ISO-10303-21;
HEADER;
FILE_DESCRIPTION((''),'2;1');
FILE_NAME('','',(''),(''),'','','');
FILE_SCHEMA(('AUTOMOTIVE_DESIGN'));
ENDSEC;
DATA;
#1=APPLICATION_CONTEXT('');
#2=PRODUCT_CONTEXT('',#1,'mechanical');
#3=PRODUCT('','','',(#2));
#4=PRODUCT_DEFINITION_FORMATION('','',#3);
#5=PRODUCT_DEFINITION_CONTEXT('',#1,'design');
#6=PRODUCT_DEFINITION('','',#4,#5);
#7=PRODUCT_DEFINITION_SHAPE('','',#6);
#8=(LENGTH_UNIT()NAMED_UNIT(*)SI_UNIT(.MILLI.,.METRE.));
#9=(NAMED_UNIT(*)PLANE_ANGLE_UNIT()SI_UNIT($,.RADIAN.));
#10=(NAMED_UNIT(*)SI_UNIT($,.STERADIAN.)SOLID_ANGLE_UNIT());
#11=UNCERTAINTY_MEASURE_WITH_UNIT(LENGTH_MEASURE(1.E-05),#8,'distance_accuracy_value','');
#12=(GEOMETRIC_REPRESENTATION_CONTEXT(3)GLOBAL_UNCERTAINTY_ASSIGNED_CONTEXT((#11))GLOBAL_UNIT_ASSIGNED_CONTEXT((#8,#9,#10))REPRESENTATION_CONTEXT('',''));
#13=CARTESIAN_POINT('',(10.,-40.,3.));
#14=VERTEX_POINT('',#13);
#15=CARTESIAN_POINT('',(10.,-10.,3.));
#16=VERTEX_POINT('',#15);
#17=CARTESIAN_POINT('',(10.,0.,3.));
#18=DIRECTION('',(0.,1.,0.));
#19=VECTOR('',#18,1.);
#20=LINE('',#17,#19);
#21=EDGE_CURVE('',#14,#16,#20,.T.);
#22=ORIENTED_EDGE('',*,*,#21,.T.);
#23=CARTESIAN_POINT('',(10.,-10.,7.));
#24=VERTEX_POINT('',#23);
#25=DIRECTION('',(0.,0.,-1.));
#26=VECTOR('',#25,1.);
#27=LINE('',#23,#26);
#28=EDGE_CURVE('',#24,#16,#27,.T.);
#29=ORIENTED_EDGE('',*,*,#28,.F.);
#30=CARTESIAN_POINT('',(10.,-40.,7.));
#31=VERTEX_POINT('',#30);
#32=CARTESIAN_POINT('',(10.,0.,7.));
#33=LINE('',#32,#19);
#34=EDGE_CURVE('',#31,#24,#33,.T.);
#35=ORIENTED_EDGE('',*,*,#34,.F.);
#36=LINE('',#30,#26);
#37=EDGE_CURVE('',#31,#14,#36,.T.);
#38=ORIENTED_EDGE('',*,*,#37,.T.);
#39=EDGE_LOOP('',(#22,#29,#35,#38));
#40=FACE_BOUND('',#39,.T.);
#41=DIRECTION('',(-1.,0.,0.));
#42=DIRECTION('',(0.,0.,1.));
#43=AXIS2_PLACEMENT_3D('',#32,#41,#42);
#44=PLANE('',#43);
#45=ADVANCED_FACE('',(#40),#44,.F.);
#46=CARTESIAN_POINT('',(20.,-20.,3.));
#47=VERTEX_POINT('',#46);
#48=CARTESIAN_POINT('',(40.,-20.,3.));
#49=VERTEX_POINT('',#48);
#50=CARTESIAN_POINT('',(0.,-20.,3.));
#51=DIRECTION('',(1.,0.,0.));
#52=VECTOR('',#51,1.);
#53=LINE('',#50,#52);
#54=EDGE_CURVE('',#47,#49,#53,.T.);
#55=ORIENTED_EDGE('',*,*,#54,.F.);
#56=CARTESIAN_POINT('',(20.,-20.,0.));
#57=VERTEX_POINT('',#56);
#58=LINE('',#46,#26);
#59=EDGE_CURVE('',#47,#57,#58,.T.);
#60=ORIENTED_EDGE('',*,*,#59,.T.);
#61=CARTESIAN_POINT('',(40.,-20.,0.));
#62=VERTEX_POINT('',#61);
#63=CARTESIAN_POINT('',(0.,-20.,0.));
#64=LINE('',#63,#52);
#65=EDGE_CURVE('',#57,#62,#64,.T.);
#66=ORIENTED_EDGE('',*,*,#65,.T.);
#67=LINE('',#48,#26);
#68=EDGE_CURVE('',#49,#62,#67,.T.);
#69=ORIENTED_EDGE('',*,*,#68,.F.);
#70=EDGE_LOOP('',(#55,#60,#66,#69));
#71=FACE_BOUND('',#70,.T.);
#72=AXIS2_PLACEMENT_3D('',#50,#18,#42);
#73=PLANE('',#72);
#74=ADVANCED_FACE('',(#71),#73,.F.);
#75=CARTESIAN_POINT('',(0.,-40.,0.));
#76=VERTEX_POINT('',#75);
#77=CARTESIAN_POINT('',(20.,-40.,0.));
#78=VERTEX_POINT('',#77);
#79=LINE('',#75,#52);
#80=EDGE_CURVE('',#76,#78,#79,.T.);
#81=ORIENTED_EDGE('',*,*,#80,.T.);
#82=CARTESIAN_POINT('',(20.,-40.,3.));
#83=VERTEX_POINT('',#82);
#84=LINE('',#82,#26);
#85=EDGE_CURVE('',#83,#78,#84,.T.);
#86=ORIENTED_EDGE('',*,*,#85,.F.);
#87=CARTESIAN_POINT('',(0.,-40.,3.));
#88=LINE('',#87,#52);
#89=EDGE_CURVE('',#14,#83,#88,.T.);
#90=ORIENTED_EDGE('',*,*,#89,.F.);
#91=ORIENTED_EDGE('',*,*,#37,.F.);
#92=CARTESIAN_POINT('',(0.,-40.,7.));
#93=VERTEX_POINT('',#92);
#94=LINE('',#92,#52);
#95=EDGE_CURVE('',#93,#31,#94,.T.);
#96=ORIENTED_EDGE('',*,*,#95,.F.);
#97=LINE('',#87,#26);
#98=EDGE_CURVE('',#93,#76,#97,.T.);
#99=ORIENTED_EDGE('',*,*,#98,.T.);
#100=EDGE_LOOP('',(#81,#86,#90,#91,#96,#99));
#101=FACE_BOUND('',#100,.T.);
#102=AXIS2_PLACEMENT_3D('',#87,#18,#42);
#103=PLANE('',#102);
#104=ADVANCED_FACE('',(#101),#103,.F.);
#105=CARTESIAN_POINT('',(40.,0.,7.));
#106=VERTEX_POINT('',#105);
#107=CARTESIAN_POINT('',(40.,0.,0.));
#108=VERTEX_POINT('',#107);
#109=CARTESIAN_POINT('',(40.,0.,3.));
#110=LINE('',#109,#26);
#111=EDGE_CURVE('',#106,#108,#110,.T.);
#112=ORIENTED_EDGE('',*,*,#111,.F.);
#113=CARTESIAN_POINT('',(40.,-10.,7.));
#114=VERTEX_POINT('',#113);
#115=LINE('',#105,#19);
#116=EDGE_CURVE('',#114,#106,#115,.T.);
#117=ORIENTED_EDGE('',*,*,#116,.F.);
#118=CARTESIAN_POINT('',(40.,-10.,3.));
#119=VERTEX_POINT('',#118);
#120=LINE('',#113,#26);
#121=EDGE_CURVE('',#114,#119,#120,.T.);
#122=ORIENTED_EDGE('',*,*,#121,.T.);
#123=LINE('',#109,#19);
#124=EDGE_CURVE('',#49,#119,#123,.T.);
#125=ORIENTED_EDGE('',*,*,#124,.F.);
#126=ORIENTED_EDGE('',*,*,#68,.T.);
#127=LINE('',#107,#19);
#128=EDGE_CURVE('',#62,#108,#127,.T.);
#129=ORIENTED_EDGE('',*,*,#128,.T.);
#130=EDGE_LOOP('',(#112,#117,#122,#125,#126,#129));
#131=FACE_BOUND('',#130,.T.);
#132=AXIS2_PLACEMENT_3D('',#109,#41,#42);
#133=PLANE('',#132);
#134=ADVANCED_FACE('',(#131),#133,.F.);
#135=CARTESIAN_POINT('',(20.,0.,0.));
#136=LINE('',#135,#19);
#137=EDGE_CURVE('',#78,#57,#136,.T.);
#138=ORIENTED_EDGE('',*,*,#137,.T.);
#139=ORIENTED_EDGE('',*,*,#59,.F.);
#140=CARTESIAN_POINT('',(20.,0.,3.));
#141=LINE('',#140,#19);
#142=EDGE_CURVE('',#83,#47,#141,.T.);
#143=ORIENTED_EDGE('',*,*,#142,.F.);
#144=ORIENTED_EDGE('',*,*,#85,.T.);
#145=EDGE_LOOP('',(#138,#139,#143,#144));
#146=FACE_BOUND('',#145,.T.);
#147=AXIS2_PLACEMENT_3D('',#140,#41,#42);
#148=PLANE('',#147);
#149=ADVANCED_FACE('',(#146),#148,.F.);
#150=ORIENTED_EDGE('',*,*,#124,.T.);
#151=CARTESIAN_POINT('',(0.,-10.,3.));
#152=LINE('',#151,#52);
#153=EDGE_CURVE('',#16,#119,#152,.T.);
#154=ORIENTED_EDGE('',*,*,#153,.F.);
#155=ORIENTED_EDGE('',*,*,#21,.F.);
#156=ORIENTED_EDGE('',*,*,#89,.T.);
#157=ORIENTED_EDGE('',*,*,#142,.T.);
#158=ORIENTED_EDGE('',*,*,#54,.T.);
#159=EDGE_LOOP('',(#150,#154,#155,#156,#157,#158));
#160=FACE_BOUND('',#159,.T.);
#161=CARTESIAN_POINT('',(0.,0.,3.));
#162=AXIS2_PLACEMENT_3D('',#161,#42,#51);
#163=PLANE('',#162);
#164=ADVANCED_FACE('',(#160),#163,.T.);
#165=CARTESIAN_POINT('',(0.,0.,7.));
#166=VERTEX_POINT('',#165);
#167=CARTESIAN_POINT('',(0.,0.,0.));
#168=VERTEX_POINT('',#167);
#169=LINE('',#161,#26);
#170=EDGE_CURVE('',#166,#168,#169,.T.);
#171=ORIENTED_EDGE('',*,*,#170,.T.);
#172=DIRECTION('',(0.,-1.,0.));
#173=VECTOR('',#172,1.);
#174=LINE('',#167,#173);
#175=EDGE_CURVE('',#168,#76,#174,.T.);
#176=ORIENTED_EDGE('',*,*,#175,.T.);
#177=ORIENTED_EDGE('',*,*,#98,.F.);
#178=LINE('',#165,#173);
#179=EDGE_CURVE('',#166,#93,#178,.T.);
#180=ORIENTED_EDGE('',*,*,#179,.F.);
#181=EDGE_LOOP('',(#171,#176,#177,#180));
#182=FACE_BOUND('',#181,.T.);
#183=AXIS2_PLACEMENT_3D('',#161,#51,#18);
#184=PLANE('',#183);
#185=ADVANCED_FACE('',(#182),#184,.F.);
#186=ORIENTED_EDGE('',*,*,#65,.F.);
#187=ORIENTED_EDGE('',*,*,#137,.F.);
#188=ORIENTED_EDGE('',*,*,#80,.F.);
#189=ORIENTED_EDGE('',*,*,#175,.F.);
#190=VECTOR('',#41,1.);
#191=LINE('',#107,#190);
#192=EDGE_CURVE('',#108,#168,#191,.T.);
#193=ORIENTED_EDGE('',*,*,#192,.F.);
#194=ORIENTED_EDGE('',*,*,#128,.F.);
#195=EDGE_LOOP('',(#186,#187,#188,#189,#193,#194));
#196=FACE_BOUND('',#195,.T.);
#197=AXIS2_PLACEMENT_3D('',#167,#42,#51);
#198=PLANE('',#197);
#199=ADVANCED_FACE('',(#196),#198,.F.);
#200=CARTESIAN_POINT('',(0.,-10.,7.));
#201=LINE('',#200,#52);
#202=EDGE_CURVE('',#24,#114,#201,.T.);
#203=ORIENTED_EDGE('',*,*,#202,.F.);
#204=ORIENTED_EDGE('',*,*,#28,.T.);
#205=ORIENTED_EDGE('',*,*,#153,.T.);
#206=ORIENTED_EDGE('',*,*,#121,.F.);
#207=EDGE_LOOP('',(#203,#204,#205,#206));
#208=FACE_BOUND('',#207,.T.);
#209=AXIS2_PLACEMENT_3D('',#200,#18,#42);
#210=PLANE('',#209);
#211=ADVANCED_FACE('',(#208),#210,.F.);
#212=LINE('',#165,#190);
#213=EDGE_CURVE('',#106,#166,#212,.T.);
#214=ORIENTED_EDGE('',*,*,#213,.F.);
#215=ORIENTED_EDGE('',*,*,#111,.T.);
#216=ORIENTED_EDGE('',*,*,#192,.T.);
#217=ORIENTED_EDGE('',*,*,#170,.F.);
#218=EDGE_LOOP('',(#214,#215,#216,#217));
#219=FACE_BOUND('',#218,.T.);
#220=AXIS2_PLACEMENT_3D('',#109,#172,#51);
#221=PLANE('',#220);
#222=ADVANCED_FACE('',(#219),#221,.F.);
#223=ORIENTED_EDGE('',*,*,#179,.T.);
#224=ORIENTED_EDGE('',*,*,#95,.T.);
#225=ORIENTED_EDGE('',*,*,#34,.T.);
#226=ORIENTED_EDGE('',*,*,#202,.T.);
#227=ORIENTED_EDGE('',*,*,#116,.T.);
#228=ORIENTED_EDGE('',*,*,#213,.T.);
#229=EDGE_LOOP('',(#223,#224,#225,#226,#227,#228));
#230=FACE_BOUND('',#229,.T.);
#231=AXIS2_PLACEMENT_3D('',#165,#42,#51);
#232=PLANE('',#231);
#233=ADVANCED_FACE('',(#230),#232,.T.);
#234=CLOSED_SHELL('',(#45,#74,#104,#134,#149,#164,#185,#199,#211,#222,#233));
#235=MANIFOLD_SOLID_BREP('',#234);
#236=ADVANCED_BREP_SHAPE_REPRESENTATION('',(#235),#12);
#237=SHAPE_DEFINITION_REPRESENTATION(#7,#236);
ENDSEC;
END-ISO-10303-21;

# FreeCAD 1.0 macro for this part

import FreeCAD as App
import Part
import Sketcher
Q = App.Units.Quantity

doc = App.newDocument("Part")
body = doc.addObject("PartDesign::Body", "Body")

# Sketch on XY plane
sketch1 = doc.addObject("Sketcher::SketchObject", "Sketch")
body.addObject(sketch1)
sketch1.AttachmentSupport = (doc.XY_Plane, [""])
sketch1.MapMode = "FlatFace"
sketch1.addGeometry([
    Part.LineSegment(App.Vector(0, 0, 0), App.Vector(0, -40, 0)),  # 0
    Part.LineSegment(App.Vector(0, -40, 0), App.Vector(20, -40, 0)),  # 1
    Part.LineSegment(App.Vector(20, -40, 0), App.Vector(20, -20, 0)),  # 2
    Part.LineSegment(App.Vector(20, -20, 0), App.Vector(40, -20, 0)),  # 3
    Part.LineSegment(App.Vector(40, -20, 0), App.Vector(40, 0, 0)),  # 4
    Part.LineSegment(App.Vector(40, 0, 0), App.Vector(0, 0, 0)),  # 5
], False)
sketch1.addConstraint([
    Sketcher.Constraint("Coincident", 0, 2, 1, 1),
    Sketcher.Constraint("Coincident", 1, 2, 2, 1),
    Sketcher.Constraint("Coincident", 2, 2, 3, 1),
    Sketcher.Constraint("Coincident", 3, 2, 4, 1),
    Sketcher.Constraint("Coincident", 4, 2, 5, 1),
    Sketcher.Constraint("Coincident", 5, 2, 0, 1),
    Sketcher.Constraint("Vertical", 0),
    Sketcher.Constraint("Horizontal", 1),
    Sketcher.Constraint("Vertical", 2),
    Sketcher.Constraint("Horizontal", 3),
    Sketcher.Constraint("Vertical", 4),
    Sketcher.Constraint("Horizontal", 5),
    Sketcher.Constraint("Coincident", 5, 2, -1, 1),
    Sketcher.Constraint("Equal", 1, 3),
    Sketcher.Constraint("Equal", 5, 0),
    Sketcher.Constraint("Equal", 3, 2),
    Sketcher.Constraint("DistanceX", 1, 1, 1, 2, Q("20 mm")),
])
pad1 = doc.addObject("PartDesign::Pad", "Pad")
body.addObject(pad1)
pad1.Profile = sketch1
pad1.Length = 3

# Sketch on XY plane
sketch2 = doc.addObject("Sketcher::SketchObject", "Sketch001")
body.addObject(sketch2)
sketch2.AttachmentSupport = (doc.XY_Plane, [""])
sketch2.MapMode = "FlatFace"
sketch2.AttachmentOffset = App.Placement(App.Vector(0, 0, 3), App.Rotation())
sketch2.addGeometry([
    Part.LineSegment(App.Vector(0, -40, 0), App.Vector(10, -40, 0)),  # 0
    Part.LineSegment(App.Vector(10, -40, 0), App.Vector(10, -10, 0)),  # 1
    Part.LineSegment(App.Vector(10, -10, 0), App.Vector(40, -10, 0)),  # 2
    Part.LineSegment(App.Vector(40, -10, 0), App.Vector(40, 0, 0)),  # 3
    Part.LineSegment(App.Vector(40, 0, 0), App.Vector(0, 0, 0)),  # 4
    Part.LineSegment(App.Vector(0, 0, 0), App.Vector(0, -40, 0)),  # 5
], False)
sketch2.addConstraint([
    Sketcher.Constraint("Coincident", 0, 2, 1, 1),
    Sketcher.Constraint("Coincident", 1, 2, 2, 1),
    Sketcher.Constraint("Coincident", 2, 2, 3, 1),
    Sketcher.Constraint("Coincident", 3, 2, 4, 1),
    Sketcher.Constraint("Coincident", 4, 2, 5, 1),
    Sketcher.Constraint("Coincident", 5, 2, 0, 1),
    Sketcher.Constraint("Horizontal", 0),
    Sketcher.Constraint("Vertical", 1),
    Sketcher.Constraint("Horizontal", 2),
    Sketcher.Constraint("Vertical", 3),
    Sketcher.Constraint("Horizontal", 4),
    Sketcher.Constraint("Vertical", 5),
    Sketcher.Constraint("Coincident", 4, 2, -1, 1),
    Sketcher.Constraint("Equal", 2, 1),
    Sketcher.Constraint("Equal", 0, 3),
    Sketcher.Constraint("DistanceX", 0, 1, 0, 2, Q("10 mm")),
    Sketcher.Constraint("DistanceX", 2, 1, 2, 2, Q("30 mm")),
])
pad2 = doc.addObject("PartDesign::Pad", "Pad001")
body.addObject(pad2)
pad2.Profile = sketch2
pad2.Length = 4

doc.recompute()
